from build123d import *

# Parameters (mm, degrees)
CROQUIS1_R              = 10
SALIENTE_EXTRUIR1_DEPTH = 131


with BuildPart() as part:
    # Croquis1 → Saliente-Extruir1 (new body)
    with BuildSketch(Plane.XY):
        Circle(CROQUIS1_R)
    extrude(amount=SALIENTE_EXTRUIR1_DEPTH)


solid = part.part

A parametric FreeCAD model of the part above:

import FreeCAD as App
import Part
import Sketcher
from FreeCAD import Vector

doc = App.newDocument("Part")
body = doc.addObject("PartDesign::Body", "Body")

sketch1 = body.newObject("Sketcher::SketchObject", "Sketch")
sketch1.AttachmentSupport = (doc.getObject("XY_Plane"), [""])
sketch1.MapMode = "FlatFace"
sketch1.addGeometry(Part.Circle(Vector(0, 0, 0), Vector(0, 0, 1), 10), False)
sketch1.addConstraint([
    Sketcher.Constraint("Coincident", 0, 3, -1, 1),
    Sketcher.Constraint("Diameter", 0, 20.0),
])
pad1 = body.newObject("PartDesign::Pad", "Pad")
pad1.Profile = sketch1
pad1.Length = 131

doc.recompute()
